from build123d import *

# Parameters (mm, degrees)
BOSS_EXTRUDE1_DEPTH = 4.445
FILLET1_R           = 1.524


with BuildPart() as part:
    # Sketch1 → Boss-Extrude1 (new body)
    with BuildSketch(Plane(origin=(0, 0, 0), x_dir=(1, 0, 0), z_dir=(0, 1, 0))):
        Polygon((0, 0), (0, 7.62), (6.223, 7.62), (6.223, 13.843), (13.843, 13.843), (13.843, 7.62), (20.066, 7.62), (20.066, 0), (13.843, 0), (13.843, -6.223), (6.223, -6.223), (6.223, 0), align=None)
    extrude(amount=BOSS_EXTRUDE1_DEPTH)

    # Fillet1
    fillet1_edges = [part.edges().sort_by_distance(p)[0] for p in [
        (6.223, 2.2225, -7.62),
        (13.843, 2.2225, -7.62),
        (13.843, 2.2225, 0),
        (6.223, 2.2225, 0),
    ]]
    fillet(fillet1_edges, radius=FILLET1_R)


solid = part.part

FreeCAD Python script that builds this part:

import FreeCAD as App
import Part
import Sketcher
Q = App.Units.Quantity


def edges_at(feature, points):
    """Names of the edges that pass closest to the given points."""
    edges = feature.Shape.Edges
    near = lambda p: min(range(len(edges)), key=lambda i: edges[i].distToShape(Part.Vertex(*p))[0])
    return sorted({f"Edge{near(p) + 1}" for p in points})

doc = App.newDocument("Part")
params = doc.addObject("Spreadsheet::Sheet", "Params")
for row, (alias, value) in enumerate([
    ("sketch1_width", "0.3 in"),
    ("sketch1_width2", "0.245 in"),
    ("pad1_length", "0.175 in"),
    ("fillet_radius", "0.06 in"),
], start=1):
    params.set(f"A{row}", alias)
    params.set(f"B{row}", "=" + value)
    params.setAlias(f"B{row}", alias)

body = doc.addObject("PartDesign::Body", "Body")

sketch1 = body.newObject("Sketcher::SketchObject", "Sketch")
sketch1.AttachmentSupport = (doc.getObject("XZ_Plane"), [""])
sketch1.MapMode = "FlatFace"
sketch1.addGeometry([
    Part.LineSegment(App.Vector(0, -8, 0), App.Vector(0, 0, 0)),
    Part.LineSegment(App.Vector(0, 0, 0), App.Vector(6, 0, 0)),
    Part.LineSegment(App.Vector(6, 0, 0), App.Vector(6, 6, 0)),
    Part.LineSegment(App.Vector(6, 6, 0), App.Vector(14, 6, 0)),
    Part.LineSegment(App.Vector(14, 6, 0), App.Vector(14, 0, 0)),
    Part.LineSegment(App.Vector(14, 0, 0), App.Vector(20, 0, 0)),
    Part.LineSegment(App.Vector(20, 0, 0), App.Vector(20, -8, 0)),
    Part.LineSegment(App.Vector(20, -8, 0), App.Vector(14, -8, 0)),
    Part.LineSegment(App.Vector(14, -8, 0), App.Vector(14, -14, 0)),
    Part.LineSegment(App.Vector(14, -14, 0), App.Vector(6, -14, 0)),
    Part.LineSegment(App.Vector(6, -14, 0), App.Vector(6, -8, 0)),
    Part.LineSegment(App.Vector(6, -8, 0), App.Vector(0, -8, 0)),
], False)
sketch1.addConstraint([
    Sketcher.Constraint("Coincident", 0, 2, 1, 1),
    Sketcher.Constraint("Coincident", 1, 2, 2, 1),
    Sketcher.Constraint("Coincident", 2, 2, 3, 1),
    Sketcher.Constraint("Coincident", 3, 2, 4, 1),
    Sketcher.Constraint("Coincident", 4, 2, 5, 1),
    Sketcher.Constraint("Coincident", 5, 2, 6, 1),
    Sketcher.Constraint("Coincident", 6, 2, 7, 1),
    Sketcher.Constraint("Coincident", 7, 2, 8, 1),
    Sketcher.Constraint("Coincident", 8, 2, 9, 1),
    Sketcher.Constraint("Coincident", 9, 2, 10, 1),
    Sketcher.Constraint("Coincident", 10, 2, 11, 1),
    Sketcher.Constraint("Coincident", 11, 2, 0, 1),
    Sketcher.Constraint("Vertical", 0),
    Sketcher.Constraint("Horizontal", 1),
    Sketcher.Constraint("Vertical", 2),
    Sketcher.Constraint("Horizontal", 3),
    Sketcher.Constraint("Vertical", 4),
    Sketcher.Constraint("Horizontal", 5),
    Sketcher.Constraint("Vertical", 6),
    Sketcher.Constraint("Horizontal", 7),
    Sketcher.Constraint("Vertical", 8),
    Sketcher.Constraint("Horizontal", 9),
    Sketcher.Constraint("Vertical", 10),
    Sketcher.Constraint("Horizontal", 11),
    Sketcher.Constraint("Coincident", 0, 2, -1, 1),
    Sketcher.Constraint("PointOnObject", 4, 2, -1),
    Sketcher.Constraint("Horizontal", 7, 2, 10, 2),
    Sketcher.Constraint("Vertical", 4, 2, 7, 2),
    Sketcher.Constraint("Vertical", 2, 2, 9, 2),
    Sketcher.Constraint("Equal", 1, 5),
    Sketcher.Constraint("Equal", 9, 0),
    Sketcher.Constraint("Equal", 11, 2),
    Sketcher.Constraint("Equal", 4, 8),
    Sketcher.Constraint("DistanceX", 3, 1, 3, 2, Q("0.3 in")),
    Sketcher.Constraint("DistanceX", 1, 1, 1, 2, Q("0.245 in")),
])
sketch1.setExpression("Constraints[33]", "Params.sketch1_width")
sketch1.setExpression("Constraints[34]", "Params.sketch1_width2")
pad1 = body.newObject("PartDesign::Pad", "Pad")
pad1.Profile = sketch1
pad1.setExpression("Length", "Params.pad1_length")
pad1.Reversed = True
doc.recompute()

fillet = body.newObject("PartDesign::Fillet", "Fillet")
fillet.Base = (pad1, edges_at(pad1, [
    (6.223, 2.223, -7.62),
    (13.843, 2.223, -7.62),
    (13.843, 2.223, 0),
    (6.223, 2.223, 0),
]))
fillet.setExpression("Radius", "Params.fillet_radius")

doc.recompute()
